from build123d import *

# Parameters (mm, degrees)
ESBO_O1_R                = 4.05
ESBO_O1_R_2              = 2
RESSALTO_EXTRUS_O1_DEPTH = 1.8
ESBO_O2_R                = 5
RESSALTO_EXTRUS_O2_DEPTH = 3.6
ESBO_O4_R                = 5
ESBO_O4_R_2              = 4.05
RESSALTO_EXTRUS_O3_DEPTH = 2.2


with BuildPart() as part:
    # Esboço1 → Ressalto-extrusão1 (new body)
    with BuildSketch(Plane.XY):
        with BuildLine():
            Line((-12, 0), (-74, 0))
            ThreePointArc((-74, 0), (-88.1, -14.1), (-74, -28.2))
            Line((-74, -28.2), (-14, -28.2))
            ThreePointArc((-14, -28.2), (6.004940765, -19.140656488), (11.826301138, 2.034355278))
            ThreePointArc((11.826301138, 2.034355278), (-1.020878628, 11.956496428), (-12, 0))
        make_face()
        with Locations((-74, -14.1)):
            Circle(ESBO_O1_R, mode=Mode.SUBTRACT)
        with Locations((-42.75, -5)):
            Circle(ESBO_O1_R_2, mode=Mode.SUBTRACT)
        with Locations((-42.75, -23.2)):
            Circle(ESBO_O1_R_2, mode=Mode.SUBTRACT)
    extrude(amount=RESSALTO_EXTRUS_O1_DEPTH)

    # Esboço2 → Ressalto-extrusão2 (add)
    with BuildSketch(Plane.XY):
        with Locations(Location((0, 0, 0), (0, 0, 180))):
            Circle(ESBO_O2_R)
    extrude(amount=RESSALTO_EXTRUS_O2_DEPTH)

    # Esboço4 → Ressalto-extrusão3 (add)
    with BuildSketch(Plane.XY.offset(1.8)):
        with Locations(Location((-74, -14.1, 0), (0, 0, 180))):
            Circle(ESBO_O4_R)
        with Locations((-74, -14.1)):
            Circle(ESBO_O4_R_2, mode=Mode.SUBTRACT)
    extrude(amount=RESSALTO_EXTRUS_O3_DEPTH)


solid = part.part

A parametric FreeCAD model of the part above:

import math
import FreeCAD as App
import Part
import Sketcher
Q = App.Units.Quantity

doc = App.newDocument("Part")
params = doc.addObject("Spreadsheet::Sheet", "Params")
for row, (alias, value) in enumerate([
    ("sketch1_diameter", "4 mm"),
    ("sketch1_radius", "12 mm"),
    ("sketch1_diameter2", "8.1 mm"),
    ("sketch1_radius2", "14.1 mm"),
    ("sketch1_width", "62 mm"),
    ("pad1_length", "1.8 mm"),
    ("sketch2_diameter", "10 mm"),
    ("pad2_length", "3.6 mm"),
    ("sketch3_diameter", "10 mm"),
    ("sketch3_diameter2", "8.1 mm"),
    ("pad3_length", "2.2 mm"),
], start=1):
    params.set(f"A{row}", alias)
    params.set(f"B{row}", "=" + value)
    params.setAlias(f"B{row}", alias)

body = doc.addObject("PartDesign::Body", "Body")

sketch1 = doc.addObject("Sketcher::SketchObject", "Sketch")
body.addObject(sketch1)
sketch1.AttachmentSupport = (doc.XY_Plane, [""])
sketch1.MapMode = "FlatFace"
sketch1.addGeometry(Part.LineSegment(App.Vector(-12, 0, 0), App.Vector(-74, 0, 0)), False)
sketch1.addGeometry(Part.ArcOfCircle(Part.Circle(App.Vector(-74, -14.1, 0), App.Vector(0, 0, 1), 14.1), math.radians(90), math.radians(270)), False)
sketch1.addGeometry(Part.LineSegment(App.Vector(-74, -28.2, 0), App.Vector(-14, -28.2, 0)), False)
sketch1.addGeometry(Part.ArcOfCircle(Part.Circle(App.Vector(-13.653181, -2.348614, 0), App.Vector(0, 0, 1), 25.853712), math.radians(-90.768627), math.radians(9.760471)), False)
sketch1.addGeometry(Part.ArcOfCircle(Part.Circle(App.Vector(0, 0, 0), App.Vector(0, 0, 1), 12), math.radians(9.760471), math.radians(180)), False)
sketch1.addGeometry(Part.Circle(App.Vector(-42.75, -23.2, 0), App.Vector(0, 0, 1), 2), False)
sketch1.addGeometry(Part.Circle(App.Vector(-74, -14.1, 0), App.Vector(0, 0, 1), 4.05), False)
sketch1.addGeometry(Part.Circle(App.Vector(-42.75, -5, 0), App.Vector(0, 0, 1), 2), False)
sketch1.addConstraint(Sketcher.Constraint("Tangent", 0, 2, 1, 1))
sketch1.addConstraint(Sketcher.Constraint("Tangent", 1, 2, 2, 1))
sketch1.addConstraint(Sketcher.Constraint("Coincident", 2, 2, 3, 1))
sketch1.addConstraint(Sketcher.Constraint("Tangent", 3, 2, 4, 1))
sketch1.addConstraint(Sketcher.Constraint("Coincident", 4, 2, 0, 1))
sketch1.addConstraint(Sketcher.Constraint("Horizontal", 0))
sketch1.addConstraint(Sketcher.Constraint("Horizontal", 2))
sketch1.addConstraint(Sketcher.Constraint("Coincident", 4, 3, -1, 1))
sketch1.addConstraint(Sketcher.Constraint("Coincident", 6, 3, 1, 3))
sketch1.addConstraint(Sketcher.Constraint("Equal", 5, 7))
sketch1.addConstraint(Sketcher.Constraint("PointOnObject", 0, 2, -1))
sketch1.addConstraint(Sketcher.Constraint("Vertical", 5, 3, 7, 3))
sketch1.addConstraint(Sketcher.Constraint("Diameter", 5, Q("4 mm")))
sketch1.addConstraint(Sketcher.Constraint("Radius", 4, Q("12 mm")))
sketch1.addConstraint(Sketcher.Constraint("Diameter", 6, Q("8.1 mm")))
sketch1.addConstraint(Sketcher.Constraint("Radius", 1, Q("14.1 mm")))
sketch1.addConstraint(Sketcher.Constraint("DistanceX", 0, 2, 0, 1, Q("62 mm")))
sketch1.addConstraint(Sketcher.Constraint("DistanceX", 2, 1, 2, 2, Q("60 mm")))
sketch1.addConstraint(Sketcher.Constraint("DistanceY", 7, 3, -1, 1, Q("5 mm")))
sketch1.addConstraint(Sketcher.Constraint("DistanceY", 1, 2, 5, 3, Q("5 mm")))
sketch1.addConstraint(Sketcher.Constraint("DistanceX", 5, 3, -1, 1, Q("42.75 mm")))
sketch1.addConstraint(Sketcher.Constraint("Radius", 3, Q("25.853712 mm")))
sketch1.setExpression("Constraints[12]", "Params.sketch1_diameter")
sketch1.setExpression("Constraints[13]", "Params.sketch1_radius")
sketch1.setExpression("Constraints[14]", "Params.sketch1_diameter2")
sketch1.setExpression("Constraints[15]", "Params.sketch1_radius2")
sketch1.setExpression("Constraints[16]", "Params.sketch1_width")
pad1 = doc.addObject("PartDesign::Pad", "Pad")
body.addObject(pad1)
pad1.Profile = sketch1
pad1.setExpression("Length", "Params.pad1_length")

sketch2 = doc.addObject("Sketcher::SketchObject", "Sketch001")
body.addObject(sketch2)
sketch2.AttachmentSupport = (doc.XY_Plane, [""])
sketch2.MapMode = "FlatFace"
sketch2.addGeometry(Part.Circle(App.Vector(0, 0, 0), App.Vector(0, 0, 1), 5), False)
sketch2.addConstraint(Sketcher.Constraint("Coincident", 0, 3, -1, 1))
sketch2.addConstraint(Sketcher.Constraint("Diameter", 0, Q("10 mm")))
sketch2.setExpression("Constraints[1]", "Params.sketch2_diameter")
pad2 = doc.addObject("PartDesign::Pad", "Pad001")
body.addObject(pad2)
pad2.Profile = sketch2
pad2.setExpression("Length", "Params.pad2_length")

sketch3 = doc.addObject("Sketcher::SketchObject", "Sketch002")
body.addObject(sketch3)
sketch3.AttachmentSupport = (doc.XY_Plane, [""])
sketch3.MapMode = "FlatFace"
sketch3.AttachmentOffset = App.Placement(App.Vector(0, 0, 1.8), App.Rotation())
sketch3.addGeometry(Part.Circle(App.Vector(-74, -14.1, 0), App.Vector(0, 0, 1), 5), False)
sketch3.addGeometry(Part.Circle(App.Vector(-74, -14.1, 0), App.Vector(0, 0, 1), 4.05), False)
sketch3.addConstraint(Sketcher.Constraint("Coincident", 1, 3, 0, 3))
sketch3.addConstraint(Sketcher.Constraint("Diameter", 0, Q("10 mm")))
sketch3.addConstraint(Sketcher.Constraint("Diameter", 1, Q("8.1 mm")))
sketch3.addConstraint(Sketcher.Constraint("DistanceX", 0, 3, -1, 1, Q("74 mm")))
sketch3.addConstraint(Sketcher.Constraint("DistanceY", 0, 3, -1, 1, Q("14.1 mm")))
sketch3.setExpression("Constraints[1]", "Params.sketch3_diameter")
sketch3.setExpression("Constraints[2]", "Params.sketch3_diameter2")
pad3 = doc.addObject("PartDesign::Pad", "Pad002")
body.addObject(pad3)
pad3.Profile = sketch3
pad3.setExpression("Length", "Params.pad3_length")

doc.recompute()
